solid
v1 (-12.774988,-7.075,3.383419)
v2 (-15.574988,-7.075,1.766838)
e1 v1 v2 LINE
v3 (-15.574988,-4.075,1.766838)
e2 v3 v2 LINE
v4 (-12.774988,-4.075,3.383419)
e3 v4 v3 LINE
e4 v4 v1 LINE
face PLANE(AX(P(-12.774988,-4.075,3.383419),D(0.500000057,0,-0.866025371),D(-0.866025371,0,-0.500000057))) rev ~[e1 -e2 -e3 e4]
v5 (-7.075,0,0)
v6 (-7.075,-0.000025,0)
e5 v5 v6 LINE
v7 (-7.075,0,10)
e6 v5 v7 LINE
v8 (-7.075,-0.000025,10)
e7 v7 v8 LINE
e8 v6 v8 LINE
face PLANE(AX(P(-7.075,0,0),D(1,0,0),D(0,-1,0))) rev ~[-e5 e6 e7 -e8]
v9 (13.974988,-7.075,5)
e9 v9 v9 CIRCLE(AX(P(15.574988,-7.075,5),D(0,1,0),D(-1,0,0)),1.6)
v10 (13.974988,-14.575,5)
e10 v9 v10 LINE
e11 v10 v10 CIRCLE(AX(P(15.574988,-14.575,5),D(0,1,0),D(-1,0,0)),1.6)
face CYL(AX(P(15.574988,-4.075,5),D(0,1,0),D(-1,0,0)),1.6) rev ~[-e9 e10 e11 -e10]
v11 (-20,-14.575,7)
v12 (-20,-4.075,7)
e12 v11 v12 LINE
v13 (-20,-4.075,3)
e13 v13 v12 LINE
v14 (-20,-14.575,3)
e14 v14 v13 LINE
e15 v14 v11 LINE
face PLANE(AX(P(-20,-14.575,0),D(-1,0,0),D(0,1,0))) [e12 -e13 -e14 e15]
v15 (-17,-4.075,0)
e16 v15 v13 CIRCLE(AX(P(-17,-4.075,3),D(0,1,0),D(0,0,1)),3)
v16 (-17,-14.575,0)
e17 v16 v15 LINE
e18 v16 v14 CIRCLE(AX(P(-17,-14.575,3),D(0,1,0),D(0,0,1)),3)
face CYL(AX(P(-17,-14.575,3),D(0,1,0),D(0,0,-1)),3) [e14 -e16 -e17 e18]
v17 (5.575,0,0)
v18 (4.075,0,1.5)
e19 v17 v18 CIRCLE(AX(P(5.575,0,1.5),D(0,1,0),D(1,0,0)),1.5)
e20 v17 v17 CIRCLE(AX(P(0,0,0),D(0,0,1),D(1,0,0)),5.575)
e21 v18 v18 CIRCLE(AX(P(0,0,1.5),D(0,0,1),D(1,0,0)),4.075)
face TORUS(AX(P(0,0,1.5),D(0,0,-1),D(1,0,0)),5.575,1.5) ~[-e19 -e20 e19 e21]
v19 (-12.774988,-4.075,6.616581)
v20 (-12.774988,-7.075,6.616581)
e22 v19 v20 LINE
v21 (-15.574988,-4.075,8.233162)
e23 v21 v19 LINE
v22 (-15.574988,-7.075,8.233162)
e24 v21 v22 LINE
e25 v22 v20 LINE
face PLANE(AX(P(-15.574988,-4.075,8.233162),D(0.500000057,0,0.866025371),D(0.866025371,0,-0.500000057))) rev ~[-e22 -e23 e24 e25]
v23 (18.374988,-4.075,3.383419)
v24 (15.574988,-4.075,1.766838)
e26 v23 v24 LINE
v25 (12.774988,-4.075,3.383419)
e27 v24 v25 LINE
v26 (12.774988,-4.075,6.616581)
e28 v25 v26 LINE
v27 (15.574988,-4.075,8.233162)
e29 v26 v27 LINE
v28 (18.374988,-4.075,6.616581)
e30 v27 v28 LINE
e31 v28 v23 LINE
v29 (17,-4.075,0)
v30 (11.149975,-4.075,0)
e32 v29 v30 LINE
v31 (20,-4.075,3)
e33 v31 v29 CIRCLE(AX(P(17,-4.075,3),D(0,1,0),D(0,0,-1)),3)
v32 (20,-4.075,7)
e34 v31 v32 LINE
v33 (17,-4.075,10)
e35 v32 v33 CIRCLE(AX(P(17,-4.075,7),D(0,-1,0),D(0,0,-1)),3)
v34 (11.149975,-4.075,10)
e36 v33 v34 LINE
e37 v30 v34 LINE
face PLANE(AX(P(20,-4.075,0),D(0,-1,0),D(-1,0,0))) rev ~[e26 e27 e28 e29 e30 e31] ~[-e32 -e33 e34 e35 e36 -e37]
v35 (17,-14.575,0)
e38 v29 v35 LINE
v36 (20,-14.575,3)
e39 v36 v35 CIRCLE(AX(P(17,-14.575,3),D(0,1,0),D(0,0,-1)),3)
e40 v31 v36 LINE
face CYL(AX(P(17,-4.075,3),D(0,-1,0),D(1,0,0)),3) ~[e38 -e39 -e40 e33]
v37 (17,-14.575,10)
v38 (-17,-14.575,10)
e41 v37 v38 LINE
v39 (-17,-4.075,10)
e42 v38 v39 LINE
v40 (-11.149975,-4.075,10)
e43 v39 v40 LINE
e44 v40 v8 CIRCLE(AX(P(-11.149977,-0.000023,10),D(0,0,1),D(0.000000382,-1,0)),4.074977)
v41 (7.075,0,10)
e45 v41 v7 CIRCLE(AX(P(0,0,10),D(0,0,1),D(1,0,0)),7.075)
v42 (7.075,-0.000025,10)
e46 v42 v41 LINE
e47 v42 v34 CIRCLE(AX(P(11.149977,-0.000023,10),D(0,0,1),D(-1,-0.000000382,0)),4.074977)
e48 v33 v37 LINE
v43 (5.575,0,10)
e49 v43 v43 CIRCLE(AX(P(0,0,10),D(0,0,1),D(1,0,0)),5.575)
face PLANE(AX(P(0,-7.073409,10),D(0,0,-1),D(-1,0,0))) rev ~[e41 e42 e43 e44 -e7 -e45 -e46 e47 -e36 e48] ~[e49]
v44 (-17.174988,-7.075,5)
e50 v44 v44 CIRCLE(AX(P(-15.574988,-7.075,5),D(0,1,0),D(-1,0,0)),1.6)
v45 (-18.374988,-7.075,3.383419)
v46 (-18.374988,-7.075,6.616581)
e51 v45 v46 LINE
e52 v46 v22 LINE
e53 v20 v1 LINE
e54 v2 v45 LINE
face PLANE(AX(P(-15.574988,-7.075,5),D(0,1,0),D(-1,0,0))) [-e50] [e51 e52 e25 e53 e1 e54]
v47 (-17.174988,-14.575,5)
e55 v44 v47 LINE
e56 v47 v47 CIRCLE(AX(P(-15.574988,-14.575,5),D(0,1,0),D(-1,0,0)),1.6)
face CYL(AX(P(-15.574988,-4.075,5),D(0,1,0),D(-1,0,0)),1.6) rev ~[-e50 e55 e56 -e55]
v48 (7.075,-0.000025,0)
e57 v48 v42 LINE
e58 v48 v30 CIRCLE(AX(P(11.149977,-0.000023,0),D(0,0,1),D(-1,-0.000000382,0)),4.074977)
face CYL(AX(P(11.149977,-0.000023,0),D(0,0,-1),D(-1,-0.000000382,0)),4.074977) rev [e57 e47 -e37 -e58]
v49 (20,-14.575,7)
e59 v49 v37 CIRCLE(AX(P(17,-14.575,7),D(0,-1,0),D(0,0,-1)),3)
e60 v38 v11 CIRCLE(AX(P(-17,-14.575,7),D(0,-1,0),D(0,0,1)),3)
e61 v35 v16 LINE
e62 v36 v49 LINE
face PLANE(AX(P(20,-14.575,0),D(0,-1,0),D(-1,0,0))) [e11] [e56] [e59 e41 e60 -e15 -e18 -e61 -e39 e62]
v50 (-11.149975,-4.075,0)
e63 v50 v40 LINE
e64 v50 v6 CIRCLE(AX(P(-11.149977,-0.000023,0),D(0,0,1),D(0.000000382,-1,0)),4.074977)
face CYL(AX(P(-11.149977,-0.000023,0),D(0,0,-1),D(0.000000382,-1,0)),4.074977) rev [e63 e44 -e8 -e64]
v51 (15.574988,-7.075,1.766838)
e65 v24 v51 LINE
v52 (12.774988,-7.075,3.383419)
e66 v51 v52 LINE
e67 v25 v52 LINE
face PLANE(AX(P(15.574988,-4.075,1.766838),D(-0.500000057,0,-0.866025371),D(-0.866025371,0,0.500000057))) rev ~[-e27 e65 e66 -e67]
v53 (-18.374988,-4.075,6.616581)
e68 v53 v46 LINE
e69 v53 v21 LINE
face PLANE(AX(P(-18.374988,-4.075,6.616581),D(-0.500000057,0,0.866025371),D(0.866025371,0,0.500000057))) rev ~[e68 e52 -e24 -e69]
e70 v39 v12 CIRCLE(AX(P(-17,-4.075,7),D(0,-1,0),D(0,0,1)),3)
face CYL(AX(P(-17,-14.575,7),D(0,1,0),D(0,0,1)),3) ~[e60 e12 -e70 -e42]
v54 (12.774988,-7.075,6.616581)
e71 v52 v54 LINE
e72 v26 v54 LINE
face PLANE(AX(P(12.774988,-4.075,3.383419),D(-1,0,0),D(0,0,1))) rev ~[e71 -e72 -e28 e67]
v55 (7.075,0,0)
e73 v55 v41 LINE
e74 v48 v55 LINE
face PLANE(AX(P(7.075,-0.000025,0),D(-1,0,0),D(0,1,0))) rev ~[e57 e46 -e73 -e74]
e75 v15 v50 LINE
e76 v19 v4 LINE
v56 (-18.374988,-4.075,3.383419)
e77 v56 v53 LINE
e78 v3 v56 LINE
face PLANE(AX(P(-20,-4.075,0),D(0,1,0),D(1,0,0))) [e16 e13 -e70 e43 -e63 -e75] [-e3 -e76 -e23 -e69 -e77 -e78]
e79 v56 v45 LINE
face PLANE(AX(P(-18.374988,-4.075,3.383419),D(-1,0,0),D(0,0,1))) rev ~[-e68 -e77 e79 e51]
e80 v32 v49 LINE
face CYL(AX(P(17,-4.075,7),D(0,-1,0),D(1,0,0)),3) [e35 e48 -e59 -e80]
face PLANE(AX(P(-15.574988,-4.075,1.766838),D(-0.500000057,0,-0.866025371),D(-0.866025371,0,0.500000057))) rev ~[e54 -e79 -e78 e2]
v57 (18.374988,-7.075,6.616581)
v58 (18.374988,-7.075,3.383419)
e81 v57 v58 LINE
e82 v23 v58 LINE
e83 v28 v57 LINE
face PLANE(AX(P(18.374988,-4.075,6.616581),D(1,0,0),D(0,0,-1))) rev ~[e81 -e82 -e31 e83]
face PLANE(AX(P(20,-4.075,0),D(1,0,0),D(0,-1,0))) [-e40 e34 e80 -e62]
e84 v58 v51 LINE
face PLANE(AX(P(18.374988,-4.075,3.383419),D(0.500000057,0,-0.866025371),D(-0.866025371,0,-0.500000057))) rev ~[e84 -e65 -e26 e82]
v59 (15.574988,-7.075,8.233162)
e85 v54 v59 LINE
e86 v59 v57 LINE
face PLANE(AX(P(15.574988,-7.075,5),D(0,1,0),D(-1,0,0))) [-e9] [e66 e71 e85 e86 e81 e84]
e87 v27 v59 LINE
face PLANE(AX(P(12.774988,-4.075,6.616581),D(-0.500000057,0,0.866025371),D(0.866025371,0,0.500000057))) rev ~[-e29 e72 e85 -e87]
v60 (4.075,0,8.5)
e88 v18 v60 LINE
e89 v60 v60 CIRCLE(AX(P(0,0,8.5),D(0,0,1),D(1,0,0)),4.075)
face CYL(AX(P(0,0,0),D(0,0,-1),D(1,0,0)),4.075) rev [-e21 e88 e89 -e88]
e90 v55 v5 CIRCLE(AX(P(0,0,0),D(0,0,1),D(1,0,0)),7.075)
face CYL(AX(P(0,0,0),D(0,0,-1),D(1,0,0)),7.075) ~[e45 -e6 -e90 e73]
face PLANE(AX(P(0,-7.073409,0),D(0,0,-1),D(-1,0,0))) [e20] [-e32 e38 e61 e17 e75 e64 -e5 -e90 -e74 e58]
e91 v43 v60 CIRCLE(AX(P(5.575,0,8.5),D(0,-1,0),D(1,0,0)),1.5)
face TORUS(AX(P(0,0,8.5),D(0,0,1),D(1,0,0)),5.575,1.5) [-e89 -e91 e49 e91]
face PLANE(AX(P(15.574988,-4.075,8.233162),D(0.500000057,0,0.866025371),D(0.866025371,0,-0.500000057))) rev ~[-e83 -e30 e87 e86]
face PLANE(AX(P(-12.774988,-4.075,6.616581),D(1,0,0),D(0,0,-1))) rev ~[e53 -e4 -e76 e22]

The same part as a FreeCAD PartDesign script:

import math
import FreeCAD as App
import Part
import Sketcher
from FreeCAD import Vector
Q = App.Units.Quantity


def edges_at(feature, points):
    """Names of the edges that pass closest to the given points."""
    edges = feature.Shape.Edges
    near = lambda p: min(range(len(edges)), key=lambda i: edges[i].distToShape(Part.Vertex(*p))[0])
    return sorted({f"Edge{near(p) + 1}" for p in points})

doc = App.newDocument("Part")
body = doc.addObject("PartDesign::Body", "Body")

# Sketch on XY plane
sketch1 = doc.addObject("Sketcher::SketchObject", "Sketch")
body.addObject(sketch1)
sketch1.AttachmentSupport = (doc.XY_Plane, [""])
sketch1.MapMode = "FlatFace"
sketch1.addGeometry(Part.LineSegment(Vector(20, -14.575, 0), Vector(20, -4.075, 0)), False)
sketch1.addGeometry(Part.LineSegment(Vector(20, -4.075, 0), Vector(11.149975, -4.075, 0)), False)
sketch1.addGeometry(Part.ArcOfCircle(Part.Circle(Vector(11.149977, -0.000023, 0), Vector(0, 0, 1), 4.074977), math.radians(-179.999978), math.radians(-90.000022)), False)
sketch1.addGeometry(Part.LineSegment(Vector(7.075, -0.000025, 0), Vector(7.075, 0, 0)), False)
sketch1.addGeometry(Part.ArcOfCircle(Part.Circle(Vector(0, 0, 0), Vector(0, 0, 1), 7.075), math.radians(0), math.radians(180)), False)
sketch1.addGeometry(Part.LineSegment(Vector(-7.075, 0, 0), Vector(-7.075, -0.000025, 0)), False)
sketch1.addGeometry(Part.ArcOfCircle(Part.Circle(Vector(-11.149977, -0.000023, 0), Vector(0, 0, 1), 4.074977), math.radians(-89.999978), math.radians(-0.000022)), False)
sketch1.addGeometry(Part.LineSegment(Vector(-11.149975, -4.075, 0), Vector(-20, -4.075, 0)), False)
sketch1.addGeometry(Part.LineSegment(Vector(-20, -4.075, 0), Vector(-20, -14.575, 0)), False)
sketch1.addGeometry(Part.LineSegment(Vector(-20, -14.575, 0), Vector(20, -14.575, 0)), False)
sketch1.addGeometry(Part.Circle(Vector(0, 0, 0), Vector(0, 0, 1), 4.075), False)
sketch1.addConstraint(Sketcher.Constraint("Coincident", 0, 2, 1, 1))
sketch1.addConstraint(Sketcher.Constraint("Tangent", 1, 2, 2, 2))
sketch1.addConstraint(Sketcher.Constraint("Tangent", 2, 1, 3, 1))
sketch1.addConstraint(Sketcher.Constraint("Coincident", 3, 2, 4, 1))
sketch1.addConstraint(Sketcher.Constraint("Tangent", 4, 2, 5, 1))
sketch1.addConstraint(Sketcher.Constraint("Coincident", 5, 2, 6, 2))
sketch1.addConstraint(Sketcher.Constraint("Tangent", 6, 1, 7, 1))
sketch1.addConstraint(Sketcher.Constraint("Coincident", 7, 2, 8, 1))
sketch1.addConstraint(Sketcher.Constraint("Coincident", 8, 2, 9, 1))
sketch1.addConstraint(Sketcher.Constraint("Coincident", 9, 2, 0, 1))
sketch1.addConstraint(Sketcher.Constraint("Vertical", 0))
sketch1.addConstraint(Sketcher.Constraint("Horizontal", 1))
sketch1.addConstraint(Sketcher.Constraint("Horizontal", 7))
sketch1.addConstraint(Sketcher.Constraint("Vertical", 8))
sketch1.addConstraint(Sketcher.Constraint("Horizontal", 9))
sketch1.addConstraint(Sketcher.Constraint("Coincident", 4, 3, -1, 1))
sketch1.addConstraint(Sketcher.Constraint("Coincident", 10, 3, -1, 1))
sketch1.addConstraint(Sketcher.Constraint("Equal", 2, 6))
sketch1.addConstraint(Sketcher.Constraint("Symmetric", 0, 2, 7, 2, -2))
sketch1.addConstraint(Sketcher.Constraint("PointOnObject", 3, 2, -1))
sketch1.addConstraint(Sketcher.Constraint("PointOnObject", 4, 2, -1))
sketch1.addConstraint(Sketcher.Constraint("Horizontal", 6, 3, 2, 1))
sketch1.addConstraint(Sketcher.Constraint("Horizontal", 2, 1, 5, 2))
sketch1.addConstraint(Sketcher.Constraint("Diameter", 10, 8.15))
sketch1.addConstraint(Sketcher.Constraint("DistanceX", 9, 1, 9, 2, 40.0))
sketch1.addConstraint(Sketcher.Constraint("DistanceY", 0, 1, 0, 2, 10.5))
sketch1.addConstraint(Sketcher.Constraint("Radius", 4, 7.075))
sketch1.addConstraint(Sketcher.Constraint("DistanceY", 0, 2, -1, 1, 4.075))
sketch1.addConstraint(Sketcher.Constraint("Radius", 2, 4.074977))
pad1 = doc.addObject("PartDesign::Pad", "Pad")
body.addObject(pad1)
pad1.Profile = sketch1
pad1.Length = 10

# Sketch on XZ plane
sketch2 = doc.addObject("Sketcher::SketchObject", "Sketch001")
body.addObject(sketch2)
sketch2.AttachmentSupport = (doc.XZ_Plane, [""])
sketch2.MapMode = "FlatFace"
sketch2.AttachmentOffset = App.Placement(Vector(0, 0, 4.075), App.Rotation())
sketch2.addGeometry(Part.Circle(Vector(15.6, 5, 0), Vector(0, 0, 1), 1.6), False)
sketch2.addGeometry(Part.Circle(Vector(-15.6, 5, 0), Vector(0, 0, 1), 1.6), False)
sketch2.addConstraint(Sketcher.Constraint("Equal", 0, 1))
sketch2.addConstraint(Sketcher.Constraint("Symmetric", 0, 3, 1, 3, -2))
sketch2.addConstraint(Sketcher.Constraint("Diameter", 0, 3.2))
sketch2.addConstraint(Sketcher.Constraint("DistanceY", -1, 1, 0, 3, 5.0))
sketch2.addConstraint(Sketcher.Constraint("DistanceX", -1, 1, 0, 3, 15.574988))
pocket1 = doc.addObject("PartDesign::Pocket", "Pocket")
body.addObject(pocket1)
pocket1.Profile = sketch2
pocket1.Type = "ThroughAll"
pocket1.Reversed = True

# Sketch on XZ plane
sketch3 = doc.addObject("Sketcher::SketchObject", "Sketch002")
body.addObject(sketch3)
sketch3.AttachmentSupport = (doc.XZ_Plane, [""])
sketch3.MapMode = "FlatFace"
sketch3.AttachmentOffset = App.Placement(Vector(0, 0, 4.075), App.Rotation())
sketch3.addGeometry(Part.LineSegment(Vector(15.6, 8.2, 0), Vector(18.4, 6.6, 0)), False)
sketch3.addGeometry(Part.LineSegment(Vector(18.4, 6.6, 0), Vector(18.4, 3.4, 0)), False)
sketch3.addGeometry(Part.LineSegment(Vector(18.4, 3.4, 0), Vector(15.6, 1.8, 0)), False)
sketch3.addGeometry(Part.LineSegment(Vector(15.6, 1.8, 0), Vector(12.8, 3.4, 0)), False)
sketch3.addGeometry(Part.LineSegment(Vector(12.8, 3.4, 0), Vector(12.8, 6.6, 0)), False)
sketch3.addGeometry(Part.LineSegment(Vector(12.8, 6.6, 0), Vector(15.6, 8.2, 0)), False)
sketch3.addGeometry(Part.LineSegment(Vector(-15.6, 8.2, 0), Vector(-12.8, 6.6, 0)), False)
sketch3.addGeometry(Part.LineSegment(Vector(-12.8, 6.6, 0), Vector(-12.8, 3.4, 0)), False)
sketch3.addGeometry(Part.LineSegment(Vector(-12.8, 3.4, 0), Vector(-15.6, 1.8, 0)), False)
sketch3.addGeometry(Part.LineSegment(Vector(-15.6, 1.8, 0), Vector(-18.4, 3.4, 0)), False)
sketch3.addGeometry(Part.LineSegment(Vector(-18.4, 3.4, 0), Vector(-18.4, 6.6, 0)), False)
sketch3.addGeometry(Part.LineSegment(Vector(-18.4, 6.6, 0), Vector(-15.6, 8.2, 0)), False)
sketch3.addConstraint(Sketcher.Constraint("Coincident", 0, 2, 1, 1))
sketch3.addConstraint(Sketcher.Constraint("Coincident", 1, 2, 2, 1))
sketch3.addConstraint(Sketcher.Constraint("Coincident", 2, 2, 3, 1))
sketch3.addConstraint(Sketcher.Constraint("Coincident", 3, 2, 4, 1))
sketch3.addConstraint(Sketcher.Constraint("Coincident", 4, 2, 5, 1))
sketch3.addConstraint(Sketcher.Constraint("Coincident", 5, 2, 0, 1))
sketch3.addConstraint(Sketcher.Constraint("Coincident", 6, 2, 7, 1))
sketch3.addConstraint(Sketcher.Constraint("Coincident", 7, 2, 8, 1))
sketch3.addConstraint(Sketcher.Constraint("Coincident", 8, 2, 9, 1))
sketch3.addConstraint(Sketcher.Constraint("Coincident", 9, 2, 10, 1))
sketch3.addConstraint(Sketcher.Constraint("Coincident", 10, 2, 11, 1))
sketch3.addConstraint(Sketcher.Constraint("Coincident", 11, 2, 6, 1))
sketch3.addConstraint(Sketcher.Constraint("Vertical", 1))
sketch3.addConstraint(Sketcher.Constraint("Vertical", 4))
sketch3.addConstraint(Sketcher.Constraint("Vertical", 7))
sketch3.addConstraint(Sketcher.Constraint("Vertical", 10))
sketch3.addConstraint(Sketcher.Constraint("Symmetric", 4, 2, 6, 2, -2))
sketch3.addConstraint(Sketcher.Constraint("Symmetric", 2, 2, 8, 2, -2))
sketch3.addConstraint(Sketcher.Constraint("Symmetric", 1, 2, 9, 2, -2))
sketch3.addConstraint(Sketcher.Constraint("Symmetric", 5, 2, 11, 2, -2))
sketch3.addConstraint(Sketcher.Constraint("Parallel", 0, 3))
sketch3.addConstraint(Sketcher.Constraint("Parallel", 2, 5))
sketch3.addConstraint(Sketcher.Constraint("Parallel", 3, 6))
sketch3.addConstraint(Sketcher.Constraint("Parallel", 5, 8))
sketch3.addConstraint(Sketcher.Constraint("Parallel", 8, 11))
sketch3.addConstraint(Sketcher.Constraint("Horizontal", 1, 2, 3, 2))
sketch3.addConstraint(Sketcher.Constraint("Horizontal", 0, 2, 4, 2))
sketch3.addConstraint(Sketcher.Constraint("Angle", 0, Q("-30.000004 deg")))
sketch3.addConstraint(Sketcher.Constraint("DistanceX", 2, 2, 1, 2, 2.8))
sketch3.addConstraint(Sketcher.Constraint("DistanceY", 1, 2, 1, 1, 3.233162))
sketch3.addConstraint(Sketcher.Constraint("DistanceY", -1, 1, 0, 2, 6.616581))
sketch3.addConstraint(Sketcher.Constraint("DistanceX", -1, 1, 0, 2, 18.374988))
pocket2 = doc.addObject("PartDesign::Pocket", "Pocket001")
body.addObject(pocket2)
pocket2.Profile = sketch3
pocket2.Length = 3
pocket2.Reversed = True
doc.recompute()

fillet = doc.addObject("PartDesign::Fillet", "Fillet")
body.addObject(fillet)
fillet.Base = (pocket2, edges_at(pocket2, [
    (-20, -9.325, 0),
    (-20, -9.325, 10),
    (20, -9.325, 0),
    (20, -9.325, 10),
]))
fillet.Radius = 3
doc.recompute()

fillet2 = doc.addObject("PartDesign::Fillet", "Fillet001")
body.addObject(fillet2)
fillet2.Base = (fillet, edges_at(fillet, [(-4.075, 0, 10), (-4.075, 0, 0)]))
fillet2.Radius = 1.5

doc.recompute()
